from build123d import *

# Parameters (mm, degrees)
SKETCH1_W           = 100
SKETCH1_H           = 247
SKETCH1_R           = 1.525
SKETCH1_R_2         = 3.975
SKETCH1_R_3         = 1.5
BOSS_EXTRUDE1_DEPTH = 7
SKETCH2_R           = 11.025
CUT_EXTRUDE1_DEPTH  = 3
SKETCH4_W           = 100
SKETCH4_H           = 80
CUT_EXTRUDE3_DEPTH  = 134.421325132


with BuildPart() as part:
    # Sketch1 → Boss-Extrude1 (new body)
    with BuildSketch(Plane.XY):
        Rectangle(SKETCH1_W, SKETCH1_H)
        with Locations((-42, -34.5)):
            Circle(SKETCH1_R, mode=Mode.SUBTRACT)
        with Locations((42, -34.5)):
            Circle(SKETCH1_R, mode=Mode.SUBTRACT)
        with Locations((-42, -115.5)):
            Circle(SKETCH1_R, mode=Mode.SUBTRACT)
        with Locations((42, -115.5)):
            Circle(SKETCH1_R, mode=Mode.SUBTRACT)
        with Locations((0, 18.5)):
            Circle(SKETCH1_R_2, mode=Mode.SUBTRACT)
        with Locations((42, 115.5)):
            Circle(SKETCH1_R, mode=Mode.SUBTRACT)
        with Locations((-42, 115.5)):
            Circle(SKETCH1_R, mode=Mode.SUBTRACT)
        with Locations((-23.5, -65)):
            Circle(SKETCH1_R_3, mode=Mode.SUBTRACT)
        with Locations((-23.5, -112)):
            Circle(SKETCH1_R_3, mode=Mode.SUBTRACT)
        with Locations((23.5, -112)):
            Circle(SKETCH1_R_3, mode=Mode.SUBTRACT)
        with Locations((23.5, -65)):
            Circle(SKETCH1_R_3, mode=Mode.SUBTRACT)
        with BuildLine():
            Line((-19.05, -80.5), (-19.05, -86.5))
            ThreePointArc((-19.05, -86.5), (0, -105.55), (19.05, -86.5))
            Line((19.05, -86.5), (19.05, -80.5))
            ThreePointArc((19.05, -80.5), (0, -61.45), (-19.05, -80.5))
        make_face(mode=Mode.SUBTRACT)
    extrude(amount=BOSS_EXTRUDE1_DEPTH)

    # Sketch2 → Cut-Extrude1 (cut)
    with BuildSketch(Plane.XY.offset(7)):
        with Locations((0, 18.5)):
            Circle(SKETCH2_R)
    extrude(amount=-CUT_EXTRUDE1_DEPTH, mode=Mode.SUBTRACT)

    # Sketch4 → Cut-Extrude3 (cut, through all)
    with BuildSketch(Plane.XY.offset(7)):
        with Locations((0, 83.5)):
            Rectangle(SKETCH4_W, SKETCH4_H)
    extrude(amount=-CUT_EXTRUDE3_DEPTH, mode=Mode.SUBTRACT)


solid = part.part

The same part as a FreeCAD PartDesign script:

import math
import FreeCAD as App
import Part
import Sketcher
from FreeCAD import Vector
Q = App.Units.Quantity


def add_polygon(sketch, points):
    """Adds a closed chain of lines whose ends are joined by coincident constraints."""
    first, n = sketch.GeometryCount, len(points)
    for a, b in zip(points, points[1:] + points[:1]):
        sketch.addGeometry(Part.LineSegment(App.Vector(*a, 0), App.Vector(*b, 0)), False)
    for i in range(n):
        sketch.addConstraint(Sketcher.Constraint("Coincident", first + i, 2, first + (i + 1) % n, 1))

doc = App.newDocument("Part")
body = doc.addObject("PartDesign::Body", "Body")

# Sketch on XY plane
sketch1 = doc.addObject("Sketcher::SketchObject", "Sketch")
body.addObject(sketch1)
sketch1.AttachmentSupport = (doc.XY_Plane, [""])
sketch1.MapMode = "FlatFace"
add_polygon(sketch1, [(-50, 123.5), (-50, -123.5), (50, -123.5), (50, 123.5)])  # lines 0-3
sketch1.addGeometry(Part.Circle(Vector(-42, -115.5, 0), Vector(0, 0, 1), 1.5), False)  # 4
sketch1.addGeometry(Part.Circle(Vector(-23.5, -112, 0), Vector(0, 0, 1), 1.5), False)  # 5
sketch1.addGeometry(Part.Circle(Vector(-23.5, -65, 0), Vector(0, 0, 1), 1.5), False)  # 6
sketch1.addGeometry(Part.Circle(Vector(-42, -34.5, 0), Vector(0, 0, 1), 1.5), False)  # 7
sketch1.addGeometry(Part.LineSegment(Vector(-19.1, -86.5, 0), Vector(-19.1, -80.5, 0)), False)  # 8
sketch1.addGeometry(Part.ArcOfCircle(Part.Circle(Vector(0, -80.5, 0), Vector(0, 0, 1), 19.1), math.radians(0), math.radians(180)), False)  # 9
sketch1.addGeometry(Part.LineSegment(Vector(19.1, -80.5, 0), Vector(19.1, -86.5, 0)), False)  # 10
sketch1.addGeometry(Part.ArcOfCircle(Part.Circle(Vector(0, -86.5, 0), Vector(0, 0, 1), 19.1), math.radians(180), math.radians(360)), False)  # 11
sketch1.addGeometry(Part.Circle(Vector(23.5, -112, 0), Vector(0, 0, 1), 1.5), False)  # 12
sketch1.addGeometry(Part.Circle(Vector(42, -115.5, 0), Vector(0, 0, 1), 1.5), False)  # 13
sketch1.addGeometry(Part.Circle(Vector(23.5, -65, 0), Vector(0, 0, 1), 1.5), False)  # 14
sketch1.addGeometry(Part.Circle(Vector(42, -34.5, 0), Vector(0, 0, 1), 1.5), False)  # 15
sketch1.addGeometry(Part.Circle(Vector(-42, 115.5, 0), Vector(0, 0, 1), 1.5), False)  # 16
sketch1.addGeometry(Part.Circle(Vector(0, 18.5, 0), Vector(0, 0, 1), 4), False)  # 17
sketch1.addGeometry(Part.Circle(Vector(42, 115.5, 0), Vector(0, 0, 1), 1.5), False)  # 18
sketch1.addConstraint(Sketcher.Constraint("Tangent", 8, 2, 9, 2))
sketch1.addConstraint(Sketcher.Constraint("Tangent", 9, 1, 10, 1))
sketch1.addConstraint(Sketcher.Constraint("Tangent", 10, 2, 11, 2))
sketch1.addConstraint(Sketcher.Constraint("Tangent", 11, 1, 8, 1))
sketch1.addConstraint(Sketcher.Constraint("Vertical", 0))
sketch1.addConstraint(Sketcher.Constraint("Horizontal", 1))
sketch1.addConstraint(Sketcher.Constraint("Vertical", 2))
sketch1.addConstraint(Sketcher.Constraint("Horizontal", 3))
sketch1.addConstraint(Sketcher.Constraint("Vertical", 8))
sketch1.addConstraint(Sketcher.Constraint("Vertical", 10))
sketch1.addConstraint(Sketcher.Constraint("Equal", 5, 6))
sketch1.addConstraint(Sketcher.Constraint("Equal", 4, 7))
sketch1.addConstraint(Sketcher.Constraint("Equal", 6, 12))
sketch1.addConstraint(Sketcher.Constraint("Equal", 7, 13))
sketch1.addConstraint(Sketcher.Constraint("Equal", 12, 14))
sketch1.addConstraint(Sketcher.Constraint("Equal", 13, 15))
sketch1.addConstraint(Sketcher.Constraint("Equal", 15, 16))
sketch1.addConstraint(Sketcher.Constraint("Equal", 16, 18))
sketch1.addConstraint(Sketcher.Constraint("Symmetric", 13, 3, 16, 3, -1, 1))
sketch1.addConstraint(Sketcher.Constraint("Symmetric", 4, 3, 18, 3, -1, 1))
sketch1.addConstraint(Sketcher.Constraint("Symmetric", 0, 2, 2, 2, -1, 1))
sketch1.addConstraint(Sketcher.Constraint("Symmetric", 5, 3, 12, 3, -2))
sketch1.addConstraint(Sketcher.Constraint("Symmetric", 4, 3, 13, 3, -2))
sketch1.addConstraint(Sketcher.Constraint("Symmetric", 6, 3, 14, 3, -2))
sketch1.addConstraint(Sketcher.Constraint("Symmetric", 7, 3, 15, 3, -2))
sketch1.addConstraint(Sketcher.Constraint("PointOnObject", 9, 3, -2))
sketch1.addConstraint(Sketcher.Constraint("PointOnObject", 17, 3, -2))
sketch1.addConstraint(Sketcher.Constraint("Vertical", 5, 3, 6, 3))
sketch1.addConstraint(Sketcher.Constraint("Vertical", 4, 3, 7, 3))
sketch1.addConstraint(Sketcher.Constraint("Diameter", 5, Q("3 mm")))
sketch1.addConstraint(Sketcher.Constraint("Diameter", 4, Q("3.05 mm")))
sketch1.addConstraint(Sketcher.Constraint("Diameter", 17, Q("7.95 mm")))
sketch1.addConstraint(Sketcher.Constraint("DistanceX", 1, 1, 1, 2, Q("100 mm")))
sketch1.addConstraint(Sketcher.Constraint("DistanceY", 0, 2, 0, 1, Q("247 mm")))
sketch1.addConstraint(Sketcher.Constraint("DistanceY", 8, 1, 8, 2, Q("6 mm")))
sketch1.addConstraint(Sketcher.Constraint("Radius", 9, Q("19.05 mm")))
sketch1.addConstraint(Sketcher.Constraint("DistanceX", 4, 3, -1, 1, Q("42 mm")))
sketch1.addConstraint(Sketcher.Constraint("DistanceY", 5, 3, -1, 1, Q("112 mm")))
sketch1.addConstraint(Sketcher.Constraint("DistanceY", 6, 3, -1, 1, Q("65 mm")))
sketch1.addConstraint(Sketcher.Constraint("DistanceY", 4, 3, 7, 3, Q("81 mm")))
sketch1.addConstraint(Sketcher.Constraint("DistanceY", 4, 3, 9, 3, Q("35 mm")))
sketch1.addConstraint(Sketcher.Constraint("DistanceX", 5, 3, 12, 3, Q("47 mm")))
sketch1.addConstraint(Sketcher.Constraint("DistanceY", 7, 3, 16, 3, Q("150 mm")))
sketch1.addConstraint(Sketcher.Constraint("DistanceY", 7, 3, 17, 3, Q("53 mm")))
pad1 = doc.addObject("PartDesign::Pad", "Pad")
body.addObject(pad1)
pad1.Profile = sketch1
pad1.Length = 7

# Sketch on XY plane
sketch2 = doc.addObject("Sketcher::SketchObject", "Sketch001")
body.addObject(sketch2)
sketch2.AttachmentSupport = (doc.XY_Plane, [""])
sketch2.MapMode = "FlatFace"
sketch2.AttachmentOffset = App.Placement(Vector(0, 0, 7), App.Rotation())
sketch2.addGeometry(Part.Circle(Vector(0, 18, 0), Vector(0, 0, 1), 11), False)
sketch2.addConstraint(Sketcher.Constraint("PointOnObject", 0, 3, -2))
sketch2.addConstraint(Sketcher.Constraint("Diameter", 0, Q("22.05 mm")))
sketch2.addConstraint(Sketcher.Constraint("DistanceY", -1, 1, 0, 3, Q("18.5 mm")))
pocket1 = doc.addObject("PartDesign::Pocket", "Pocket")
body.addObject(pocket1)
pocket1.Profile = sketch2
pocket1.Length = 3

# Sketch on XY plane
sketch3 = doc.addObject("Sketcher::SketchObject", "Sketch002")
body.addObject(sketch3)
sketch3.AttachmentSupport = (doc.XY_Plane, [""])
sketch3.MapMode = "FlatFace"
sketch3.AttachmentOffset = App.Placement(Vector(0, 0, 7), App.Rotation())
add_polygon(sketch3, [(-50, 124), (-50, 44), (50, 44), (50, 124)])  # lines 0-3
sketch3.addConstraint(Sketcher.Constraint("Vertical", 0))
sketch3.addConstraint(Sketcher.Constraint("Horizontal", 1))
sketch3.addConstraint(Sketcher.Constraint("Vertical", 2))
sketch3.addConstraint(Sketcher.Constraint("Horizontal", 3))
sketch3.addConstraint(Sketcher.Constraint("DistanceX", 1, 1, 1, 2, Q("100 mm")))
sketch3.addConstraint(Sketcher.Constraint("DistanceY", 0, 2, 0, 1, Q("80 mm")))
sketch3.addConstraint(Sketcher.Constraint("DistanceX", 0, 2, -1, 1, Q("50 mm")))
sketch3.addConstraint(Sketcher.Constraint("DistanceY", -1, 1, 0, 2, Q("43.5 mm")))
pocket2 = doc.addObject("PartDesign::Pocket", "Pocket001")
body.addObject(pocket2)
pocket2.Profile = sketch3
pocket2.Type = "ThroughAll"

doc.recompute()
